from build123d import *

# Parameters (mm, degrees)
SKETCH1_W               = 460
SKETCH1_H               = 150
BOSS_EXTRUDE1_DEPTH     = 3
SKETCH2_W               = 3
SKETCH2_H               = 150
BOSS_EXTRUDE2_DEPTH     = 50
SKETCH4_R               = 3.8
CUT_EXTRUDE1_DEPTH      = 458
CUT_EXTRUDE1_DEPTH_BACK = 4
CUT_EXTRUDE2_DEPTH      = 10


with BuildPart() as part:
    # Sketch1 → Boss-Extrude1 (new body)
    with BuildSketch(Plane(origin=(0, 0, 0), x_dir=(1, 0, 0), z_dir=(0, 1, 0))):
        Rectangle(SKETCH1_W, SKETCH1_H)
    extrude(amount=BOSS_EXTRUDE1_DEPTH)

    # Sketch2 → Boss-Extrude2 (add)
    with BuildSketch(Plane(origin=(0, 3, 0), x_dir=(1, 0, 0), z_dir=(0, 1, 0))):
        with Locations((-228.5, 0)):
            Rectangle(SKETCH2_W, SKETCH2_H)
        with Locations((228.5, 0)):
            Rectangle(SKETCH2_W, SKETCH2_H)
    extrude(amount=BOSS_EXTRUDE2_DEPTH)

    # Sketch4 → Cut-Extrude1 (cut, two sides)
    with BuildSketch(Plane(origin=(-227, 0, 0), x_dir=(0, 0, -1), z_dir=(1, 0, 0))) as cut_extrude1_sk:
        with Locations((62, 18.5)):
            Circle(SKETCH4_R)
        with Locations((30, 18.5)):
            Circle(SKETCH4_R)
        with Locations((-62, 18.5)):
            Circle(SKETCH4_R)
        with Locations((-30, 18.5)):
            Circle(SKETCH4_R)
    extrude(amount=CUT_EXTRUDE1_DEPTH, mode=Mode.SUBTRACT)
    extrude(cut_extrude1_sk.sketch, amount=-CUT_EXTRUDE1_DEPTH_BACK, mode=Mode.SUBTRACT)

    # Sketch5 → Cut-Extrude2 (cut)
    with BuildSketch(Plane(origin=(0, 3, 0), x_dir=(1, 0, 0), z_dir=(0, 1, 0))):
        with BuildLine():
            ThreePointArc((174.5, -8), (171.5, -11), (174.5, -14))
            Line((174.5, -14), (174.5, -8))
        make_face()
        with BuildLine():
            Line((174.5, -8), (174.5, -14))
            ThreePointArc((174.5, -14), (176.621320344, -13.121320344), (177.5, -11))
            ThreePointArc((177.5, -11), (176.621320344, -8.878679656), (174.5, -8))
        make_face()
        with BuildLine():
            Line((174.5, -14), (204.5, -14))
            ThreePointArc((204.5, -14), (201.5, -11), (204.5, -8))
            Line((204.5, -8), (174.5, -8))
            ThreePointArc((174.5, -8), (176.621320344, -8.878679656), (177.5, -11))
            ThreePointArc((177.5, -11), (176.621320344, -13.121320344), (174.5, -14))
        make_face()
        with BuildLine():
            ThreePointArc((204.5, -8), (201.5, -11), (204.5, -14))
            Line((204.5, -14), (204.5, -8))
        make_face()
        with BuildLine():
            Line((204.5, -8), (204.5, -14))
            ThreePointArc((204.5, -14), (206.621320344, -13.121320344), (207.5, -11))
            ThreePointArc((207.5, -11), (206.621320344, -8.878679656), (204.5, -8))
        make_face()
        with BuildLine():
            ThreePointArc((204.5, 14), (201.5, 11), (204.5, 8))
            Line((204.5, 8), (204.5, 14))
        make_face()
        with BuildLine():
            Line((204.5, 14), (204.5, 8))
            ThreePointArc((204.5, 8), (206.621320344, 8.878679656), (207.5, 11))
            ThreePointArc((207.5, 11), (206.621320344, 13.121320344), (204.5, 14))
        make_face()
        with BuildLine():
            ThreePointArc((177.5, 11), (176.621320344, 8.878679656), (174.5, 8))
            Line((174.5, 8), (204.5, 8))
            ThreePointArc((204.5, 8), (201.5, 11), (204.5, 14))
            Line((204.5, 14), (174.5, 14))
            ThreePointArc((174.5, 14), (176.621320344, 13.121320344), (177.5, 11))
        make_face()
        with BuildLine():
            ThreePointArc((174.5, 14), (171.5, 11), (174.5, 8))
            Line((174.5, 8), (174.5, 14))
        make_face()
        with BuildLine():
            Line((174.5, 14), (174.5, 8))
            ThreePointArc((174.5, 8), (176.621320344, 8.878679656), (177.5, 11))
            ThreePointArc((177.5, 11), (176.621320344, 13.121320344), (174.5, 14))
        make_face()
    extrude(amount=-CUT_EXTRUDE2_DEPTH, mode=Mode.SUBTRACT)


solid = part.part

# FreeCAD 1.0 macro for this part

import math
import FreeCAD as App
import Part
import Sketcher

V = App.Vector
Q = App.Units.Quantity

doc = App.newDocument("Part")
body = doc.addObject("PartDesign::Body", "Body")

sketch1 = body.newObject("Sketcher::SketchObject", "Sketch")
sketch1.AttachmentSupport = (doc.getObject("XZ_Plane"), [""])
sketch1.MapMode = "FlatFace"
sketch1.addGeometry([
    Part.LineSegment(V(-230, -75, 0), V(-230, 75, 0)),
    Part.LineSegment(V(-230, 75, 0), V(230, 75, 0)),
    Part.LineSegment(V(230, 75, 0), V(230, -75, 0)),
    Part.LineSegment(V(230, -75, 0), V(-230, -75, 0)),
], False)
sketch1.addConstraint([
    Sketcher.Constraint("Coincident", 0, 2, 1, 1),
    Sketcher.Constraint("Coincident", 1, 2, 2, 1),
    Sketcher.Constraint("Coincident", 2, 2, 3, 1),
    Sketcher.Constraint("Coincident", 3, 2, 0, 1),
    Sketcher.Constraint("Vertical", 0),
    Sketcher.Constraint("Horizontal", 1),
    Sketcher.Constraint("Vertical", 2),
    Sketcher.Constraint("Horizontal", 3),
    Sketcher.Constraint("Symmetric", 0, 2, 2, 2, -1, 1),
    Sketcher.Constraint("DistanceX", 1, 1, 1, 2, Q("460 mm")),
    Sketcher.Constraint("DistanceY", 0, 1, 0, 2, Q("150 mm")),
])
pad1 = body.newObject("PartDesign::Pad", "Pad")
pad1.Profile = sketch1
pad1.Length = 3
pad1.Reversed = True

sketch2 = body.newObject("Sketcher::SketchObject", "Sketch001")
sketch2.AttachmentSupport = (doc.getObject("XZ_Plane"), [""])
sketch2.MapMode = "FlatFace"
sketch2.AttachmentOffset = App.Placement(V(0, 0, -3), App.Rotation())
sketch2.addGeometry([
    Part.LineSegment(V(-230, -75, 0), V(-230, 75, 0)),
    Part.LineSegment(V(-230, 75, 0), V(-227, 75, 0)),
    Part.LineSegment(V(-227, 75, 0), V(-227, -75, 0)),
    Part.LineSegment(V(-227, -75, 0), V(-230, -75, 0)),
    Part.LineSegment(V(227, -75, 0), V(227, 75, 0)),
    Part.LineSegment(V(227, 75, 0), V(230, 75, 0)),
    Part.LineSegment(V(230, 75, 0), V(230, -75, 0)),
    Part.LineSegment(V(230, -75, 0), V(227, -75, 0)),
], False)
sketch2.addConstraint([
    Sketcher.Constraint("Coincident", 0, 2, 1, 1),
    Sketcher.Constraint("Coincident", 1, 2, 2, 1),
    Sketcher.Constraint("Coincident", 2, 2, 3, 1),
    Sketcher.Constraint("Coincident", 3, 2, 0, 1),
    Sketcher.Constraint("Coincident", 4, 2, 5, 1),
    Sketcher.Constraint("Coincident", 5, 2, 6, 1),
    Sketcher.Constraint("Coincident", 6, 2, 7, 1),
    Sketcher.Constraint("Coincident", 7, 2, 4, 1),
    Sketcher.Constraint("Vertical", 0),
    Sketcher.Constraint("Horizontal", 1),
    Sketcher.Constraint("Vertical", 2),
    Sketcher.Constraint("Horizontal", 3),
    Sketcher.Constraint("Vertical", 4),
    Sketcher.Constraint("Horizontal", 5),
    Sketcher.Constraint("Vertical", 6),
    Sketcher.Constraint("Horizontal", 7),
    Sketcher.Constraint("Symmetric", 2, 2, 4, 2, -1, 1),
    Sketcher.Constraint("Symmetric", 0, 2, 6, 2, -1, 1),
    Sketcher.Constraint("Horizontal", 1, 2, 4, 2),
    Sketcher.Constraint("DistanceX", 1, 1, 1, 2, Q("3 mm")),
    Sketcher.Constraint("DistanceY", 0, 1, 0, 2, Q("150 mm")),
    Sketcher.Constraint("DistanceX", 0, 2, -1, 1, Q("230 mm")),
])
pad2 = body.newObject("PartDesign::Pad", "Pad001")
pad2.Profile = sketch2
pad2.Length = 50
pad2.Reversed = True

sketch3 = body.newObject("Sketcher::SketchObject", "Sketch002")
sketch3.AttachmentSupport = (doc.getObject("YZ_Plane"), [""])
sketch3.MapMode = "FlatFace"
sketch3.AttachmentOffset = App.Placement(V(0, 0, -227), App.Rotation())
sketch3.addGeometry([
    Part.Circle(V(18.5, -62, 0), V(0, 0, 1), 3.8),
    Part.Circle(V(18.5, -30, 0), V(0, 0, 1), 3.8),
    Part.Circle(V(18.5, 62, 0), V(0, 0, 1), 3.8),
    Part.Circle(V(18.5, 30, 0), V(0, 0, 1), 3.8),
], False)
sketch3.addConstraint([
    Sketcher.Constraint("Equal", 0, 1),
    Sketcher.Constraint("Equal", 1, 2),
    Sketcher.Constraint("Equal", 2, 3),
    Sketcher.Constraint("Symmetric", 0, 3, 2, 3, -1),
    Sketcher.Constraint("Symmetric", 1, 3, 3, 3, -1),
    Sketcher.Constraint("Vertical", 0, 3, 1, 3),
    Sketcher.Constraint("Diameter", 0, Q("7.6 mm")),
    Sketcher.Constraint("DistanceY", 0, 3, -1, 1, Q("62 mm")),
    Sketcher.Constraint("DistanceY", 1, 3, -1, 1, Q("30 mm")),
    Sketcher.Constraint("DistanceX", -1, 1, 0, 3, Q("18.5 mm")),
])
pocket1 = body.newObject("PartDesign::Pocket", "Pocket")
pocket1.Profile = sketch3
pocket1.Type = "ThroughAll"
pocket1.Midplane = True

sketch4 = body.newObject("Sketcher::SketchObject", "Sketch003")
sketch4.AttachmentSupport = (doc.getObject("XZ_Plane"), [""])
sketch4.MapMode = "FlatFace"
sketch4.AttachmentOffset = App.Placement(V(0, 0, -3), App.Rotation())
sketch4.addGeometry([
    Part.LineSegment(V(174.5, 14, 0), V(204.5, 14, 0)),
    Part.ArcOfCircle(Part.Circle(V(204.5, 11, 0), V(0, 0, 1), 3), math.radians(0), math.radians(90)),
    Part.ArcOfCircle(Part.Circle(V(204.5, 11, 0), V(0, 0, 1), 3), math.radians(-90), math.radians(0)),
    Part.LineSegment(V(204.5, 8, 0), V(174.5, 8, 0)),
    Part.ArcOfCircle(Part.Circle(V(174.5, 11, 0), V(0, 0, 1), 3), math.radians(90), math.radians(270)),
    Part.LineSegment(V(204.5, -14, 0), V(174.5, -14, 0)),
    Part.ArcOfCircle(Part.Circle(V(174.5, -11, 0), V(0, 0, 1), 3), math.radians(90), math.radians(270)),
    Part.LineSegment(V(174.5, -8, 0), V(204.5, -8, 0)),
    Part.ArcOfCircle(Part.Circle(V(204.5, -11, 0), V(0, 0, 1), 3), math.radians(0), math.radians(90)),
    Part.ArcOfCircle(Part.Circle(V(204.5, -11, 0), V(0, 0, 1), 3), math.radians(-90), math.radians(0)),
], False)
sketch4.addConstraint([
    Sketcher.Constraint("Tangent", 0, 2, 1, 2),
    Sketcher.Constraint("Tangent", 1, 1, 2, 2),
    Sketcher.Constraint("Tangent", 2, 1, 3, 1),
    Sketcher.Constraint("Tangent", 3, 2, 4, 2),
    Sketcher.Constraint("Tangent", 4, 1, 0, 1),
    Sketcher.Constraint("Tangent", 5, 2, 6, 2),
    Sketcher.Constraint("Tangent", 6, 1, 7, 1),
    Sketcher.Constraint("Tangent", 7, 2, 8, 2),
    Sketcher.Constraint("Tangent", 8, 1, 9, 2),
    Sketcher.Constraint("Tangent", 9, 1, 5, 1),
    Sketcher.Constraint("Horizontal", 0),
    Sketcher.Constraint("Horizontal", 3),
    Sketcher.Constraint("Horizontal", 5),
    Sketcher.Constraint("Horizontal", 7),
    Sketcher.Constraint("Equal", 1, 2),
    Sketcher.Constraint("Equal", 4, 6),
    Sketcher.Constraint("Equal", 6, 8),
    Sketcher.Constraint("Symmetric", 4, 3, 6, 3, -1),
    Sketcher.Constraint("Symmetric", 1, 1, 8, 1, -1),
    Sketcher.Constraint("Horizontal", 4, 3, 1, 1),
    Sketcher.Constraint("Radius", 1, Q("3 mm")),
    Sketcher.Constraint("DistanceX", 0, 1, 0, 2, Q("30 mm")),
    Sketcher.Constraint("DistanceY", -1, 1, 1, 3, Q("11 mm")),
    Sketcher.Constraint("DistanceX", -1, 1, 1, 3, Q("204.5 mm")),
])
pocket2 = body.newObject("PartDesign::Pocket", "Pocket001")
pocket2.Profile = sketch4
pocket2.Length = 10
pocket2.Reversed = True

doc.recompute()
